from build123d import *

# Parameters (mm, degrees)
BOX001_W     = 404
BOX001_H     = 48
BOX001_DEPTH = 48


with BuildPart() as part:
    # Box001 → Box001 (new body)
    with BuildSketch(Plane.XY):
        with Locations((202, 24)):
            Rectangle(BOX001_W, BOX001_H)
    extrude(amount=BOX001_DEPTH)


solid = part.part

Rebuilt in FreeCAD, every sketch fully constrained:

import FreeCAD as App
import Part
import Sketcher

V = App.Vector
Q = App.Units.Quantity


def add_polygon(sketch, points):
    """Adds a closed chain of lines whose ends are joined by coincident constraints."""
    first, n = sketch.GeometryCount, len(points)
    for a, b in zip(points, points[1:] + points[:1]):
        sketch.addGeometry(Part.LineSegment(App.Vector(*a, 0), App.Vector(*b, 0)), False)
    for i in range(n):
        sketch.addConstraint(Sketcher.Constraint("Coincident", first + i, 2, first + (i + 1) % n, 1))

doc = App.newDocument("Part")
body = doc.addObject("PartDesign::Body", "Body")

sketch1 = doc.addObject("Sketcher::SketchObject", "Sketch")
body.addObject(sketch1)
sketch1.AttachmentSupport = (doc.XY_Plane, [""])
sketch1.MapMode = "FlatFace"
add_polygon(sketch1, [(0, 48), (0, 0), (404, 0), (404, 48)])
sketch1.addConstraint([
    Sketcher.Constraint("Vertical", 0),
    Sketcher.Constraint("Horizontal", 1),
    Sketcher.Constraint("Vertical", 2),
    Sketcher.Constraint("Horizontal", 3),
    Sketcher.Constraint("Coincident", 0, 2, -1, 1),
    Sketcher.Constraint("DistanceX", 1, 1, 1, 2, Q("404 mm")),
    Sketcher.Constraint("DistanceY", 0, 2, 0, 1, Q("48 mm")),
])
pad1 = doc.addObject("PartDesign::Pad", "Pad")
body.addObject(pad1)
pad1.Profile = sketch1
pad1.Length = 48

doc.recompute()
